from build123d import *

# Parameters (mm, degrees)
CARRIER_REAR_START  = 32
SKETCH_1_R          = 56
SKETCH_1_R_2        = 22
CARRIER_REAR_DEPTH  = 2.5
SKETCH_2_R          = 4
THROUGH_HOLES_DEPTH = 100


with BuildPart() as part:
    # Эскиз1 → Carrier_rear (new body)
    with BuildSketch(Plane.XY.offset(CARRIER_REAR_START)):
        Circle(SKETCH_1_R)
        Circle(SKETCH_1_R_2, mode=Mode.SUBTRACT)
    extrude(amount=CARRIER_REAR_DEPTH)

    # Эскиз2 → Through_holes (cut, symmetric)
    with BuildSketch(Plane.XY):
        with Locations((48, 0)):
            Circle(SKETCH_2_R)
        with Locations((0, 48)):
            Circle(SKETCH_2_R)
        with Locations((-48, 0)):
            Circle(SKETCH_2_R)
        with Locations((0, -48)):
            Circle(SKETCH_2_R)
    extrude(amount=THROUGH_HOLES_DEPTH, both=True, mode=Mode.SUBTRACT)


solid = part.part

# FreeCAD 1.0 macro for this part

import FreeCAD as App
import Part
import Sketcher
from FreeCAD import Vector
Q = App.Units.Quantity

doc = App.newDocument("Part")
body = doc.addObject("PartDesign::Body", "Body")

sketch1 = body.newObject("Sketcher::SketchObject", "Sketch")
sketch1.AttachmentSupport = (doc.getObject("XY_Plane"), [""])
sketch1.MapMode = "FlatFace"
sketch1.AttachmentOffset = App.Placement(Vector(0, 0, 32), App.Rotation())
sketch1.addGeometry([
    Part.Circle(Vector(0, 0, 0), Vector(0, 0, 1), 56),
    Part.Circle(Vector(0, 0, 0), Vector(0, 0, 1), 22),
], False)
sketch1.addConstraint([
    Sketcher.Constraint("Coincident", 0, 3, -1, 1),
    Sketcher.Constraint("Coincident", 1, 3, -1, 1),
    Sketcher.Constraint("Diameter", 0, Q("112 mm")),
    Sketcher.Constraint("Diameter", 1, Q("44 mm")),
])
pad1 = body.newObject("PartDesign::Pad", "Pad")
pad1.Profile = sketch1
pad1.Length = 2.5

sketch2 = body.newObject("Sketcher::SketchObject", "Sketch001")
sketch2.AttachmentSupport = (doc.getObject("XY_Plane"), [""])
sketch2.MapMode = "FlatFace"
sketch2.addGeometry([
    Part.Circle(Vector(48, 0, 0), Vector(0, 0, 1), 4),
    Part.Circle(Vector(0, 48, 0), Vector(0, 0, 1), 4),
    Part.Circle(Vector(-48, 0, 0), Vector(0, 0, 1), 4),
    Part.Circle(Vector(0, -48, 0), Vector(0, 0, 1), 4),
], False)
sketch2.addConstraint([
    Sketcher.Constraint("Equal", 0, 1),
    Sketcher.Constraint("Equal", 1, 2),
    Sketcher.Constraint("Equal", 2, 3),
    Sketcher.Constraint("Symmetric", 0, 3, 2, 3, -1, 1),
    Sketcher.Constraint("Symmetric", 1, 3, 3, 3, -1, 1),
    Sketcher.Constraint("PointOnObject", 0, 3, -1),
    Sketcher.Constraint("PointOnObject", 1, 3, -2),
    Sketcher.Constraint("Diameter", 0, Q("8 mm")),
    Sketcher.Constraint("DistanceX", -1, 1, 0, 3, Q("48 mm")),
    Sketcher.Constraint("DistanceY", -1, 1, 1, 3, Q("48 mm")),
])
pocket1 = body.newObject("PartDesign::Pocket", "Pocket")
pocket1.Profile = sketch2
pocket1.Length = 200
pocket1.Midplane = True

doc.recompute()
